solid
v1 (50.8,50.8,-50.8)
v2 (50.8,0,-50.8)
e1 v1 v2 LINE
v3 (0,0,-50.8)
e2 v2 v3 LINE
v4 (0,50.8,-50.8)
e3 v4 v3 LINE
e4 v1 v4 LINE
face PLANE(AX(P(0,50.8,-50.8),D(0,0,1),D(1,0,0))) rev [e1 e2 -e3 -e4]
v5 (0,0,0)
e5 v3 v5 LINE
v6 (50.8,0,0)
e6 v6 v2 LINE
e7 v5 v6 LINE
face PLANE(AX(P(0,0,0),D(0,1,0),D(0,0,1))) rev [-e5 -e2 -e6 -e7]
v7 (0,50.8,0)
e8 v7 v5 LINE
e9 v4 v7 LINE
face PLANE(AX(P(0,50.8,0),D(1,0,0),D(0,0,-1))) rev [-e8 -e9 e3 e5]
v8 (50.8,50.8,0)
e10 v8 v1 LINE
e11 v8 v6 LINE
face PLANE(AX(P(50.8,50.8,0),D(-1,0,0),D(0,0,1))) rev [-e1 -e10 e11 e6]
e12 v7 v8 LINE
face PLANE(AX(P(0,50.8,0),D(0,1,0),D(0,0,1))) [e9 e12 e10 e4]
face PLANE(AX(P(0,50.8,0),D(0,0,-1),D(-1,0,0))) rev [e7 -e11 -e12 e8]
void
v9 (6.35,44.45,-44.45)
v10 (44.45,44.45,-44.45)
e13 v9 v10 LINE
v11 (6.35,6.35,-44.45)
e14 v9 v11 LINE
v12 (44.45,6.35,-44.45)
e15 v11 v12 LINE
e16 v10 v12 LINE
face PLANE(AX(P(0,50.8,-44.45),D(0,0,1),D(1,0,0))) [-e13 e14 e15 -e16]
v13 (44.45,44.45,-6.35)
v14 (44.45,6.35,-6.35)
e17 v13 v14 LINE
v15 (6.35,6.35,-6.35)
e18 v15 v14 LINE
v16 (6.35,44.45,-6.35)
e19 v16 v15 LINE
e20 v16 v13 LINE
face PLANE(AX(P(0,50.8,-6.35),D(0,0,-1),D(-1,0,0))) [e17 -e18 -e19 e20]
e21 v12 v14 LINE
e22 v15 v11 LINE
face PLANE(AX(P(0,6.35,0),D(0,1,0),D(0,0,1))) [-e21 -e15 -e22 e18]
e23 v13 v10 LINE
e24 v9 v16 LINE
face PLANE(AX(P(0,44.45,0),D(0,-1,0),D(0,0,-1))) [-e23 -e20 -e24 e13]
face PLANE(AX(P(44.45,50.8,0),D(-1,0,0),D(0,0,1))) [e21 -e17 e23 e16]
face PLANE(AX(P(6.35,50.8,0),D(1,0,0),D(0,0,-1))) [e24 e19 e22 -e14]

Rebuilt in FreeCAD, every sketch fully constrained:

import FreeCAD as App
import Part
import Sketcher
from FreeCAD import Vector
Q = App.Units.Quantity

doc = App.newDocument("Part")
params = doc.addObject("Spreadsheet::Sheet", "Params")
for row, (alias, value) in enumerate([
    ("sketch1_width", "2 in"),
    ("sketch1_width2", "1.5 in"),
    ("pad1_length", "2 in"),
    ("sketch2_width", "1.5 in"),
    ("pad2_length", "0.25 in"),
    ("sketch3_width", "1.5 in"),
    ("pad3_length", "0.25 in"),
], start=1):
    params.set(f"A{row}", alias)
    params.set(f"B{row}", "=" + value)
    params.setAlias(f"B{row}", alias)

body = doc.addObject("PartDesign::Body", "Body")

# Sketch on XZ plane
sketch1 = doc.addObject("Sketcher::SketchObject", "Sketch")
body.addObject(sketch1)
sketch1.AttachmentSupport = (doc.XZ_Plane, [""])
sketch1.MapMode = "FlatFace"
sketch1.addGeometry(Part.LineSegment(Vector(0, -51, 0), Vector(0, 0, 0)), False)
sketch1.addGeometry(Part.LineSegment(Vector(0, 0, 0), Vector(51, 0, 0)), False)
sketch1.addGeometry(Part.LineSegment(Vector(51, 0, 0), Vector(51, -51, 0)), False)
sketch1.addGeometry(Part.LineSegment(Vector(51, -51, 0), Vector(0, -51, 0)), False)
sketch1.addGeometry(Part.LineSegment(Vector(44, -6, 0), Vector(6, -6, 0)), False)
sketch1.addGeometry(Part.LineSegment(Vector(6, -6, 0), Vector(6, -44, 0)), False)
sketch1.addGeometry(Part.LineSegment(Vector(6, -44, 0), Vector(44, -44, 0)), False)
sketch1.addGeometry(Part.LineSegment(Vector(44, -44, 0), Vector(44, -6, 0)), False)
sketch1.addConstraint(Sketcher.Constraint("Coincident", 0, 2, 1, 1))
sketch1.addConstraint(Sketcher.Constraint("Coincident", 1, 2, 2, 1))
sketch1.addConstraint(Sketcher.Constraint("Coincident", 2, 2, 3, 1))
sketch1.addConstraint(Sketcher.Constraint("Coincident", 3, 2, 0, 1))
sketch1.addConstraint(Sketcher.Constraint("Coincident", 4, 2, 5, 1))
sketch1.addConstraint(Sketcher.Constraint("Coincident", 5, 2, 6, 1))
sketch1.addConstraint(Sketcher.Constraint("Coincident", 6, 2, 7, 1))
sketch1.addConstraint(Sketcher.Constraint("Coincident", 7, 2, 4, 1))
sketch1.addConstraint(Sketcher.Constraint("Vertical", 0))
sketch1.addConstraint(Sketcher.Constraint("Horizontal", 1))
sketch1.addConstraint(Sketcher.Constraint("Vertical", 2))
sketch1.addConstraint(Sketcher.Constraint("Horizontal", 3))
sketch1.addConstraint(Sketcher.Constraint("Horizontal", 4))
sketch1.addConstraint(Sketcher.Constraint("Vertical", 5))
sketch1.addConstraint(Sketcher.Constraint("Horizontal", 6))
sketch1.addConstraint(Sketcher.Constraint("Vertical", 7))
sketch1.addConstraint(Sketcher.Constraint("Coincident", 0, 2, -1, 1))
sketch1.addConstraint(Sketcher.Constraint("Equal", 3, 0))
sketch1.addConstraint(Sketcher.Constraint("Equal", 6, 5))
sketch1.addConstraint(Sketcher.Constraint("DistanceX", 1, 1, 1, 2, Q("2 in")))
sketch1.addConstraint(Sketcher.Constraint("DistanceX", 4, 2, 4, 1, Q("1.5 in")))
sketch1.addConstraint(Sketcher.Constraint("DistanceX", -1, 1, 4, 2, Q("0.25 in")))
sketch1.addConstraint(Sketcher.Constraint("DistanceY", 4, 2, -1, 1, Q("0.25 in")))
sketch1.setExpression("Constraints[19]", "Params.sketch1_width")
sketch1.setExpression("Constraints[20]", "Params.sketch1_width2")
pad1 = doc.addObject("PartDesign::Pad", "Pad")
body.addObject(pad1)
pad1.Profile = sketch1
pad1.setExpression("Length", "Params.pad1_length")
pad1.Reversed = True

# Sketch on XZ plane
sketch2 = doc.addObject("Sketcher::SketchObject", "Sketch001")
body.addObject(sketch2)
sketch2.AttachmentSupport = (doc.XZ_Plane, [""])
sketch2.MapMode = "FlatFace"
sketch2.AttachmentOffset = App.Placement(Vector(0, 0, -2 * 25.4), App.Rotation())
sketch2.addGeometry(Part.LineSegment(Vector(6, -44, 0), Vector(6, -6, 0)), False)
sketch2.addGeometry(Part.LineSegment(Vector(6, -6, 0), Vector(44, -6, 0)), False)
sketch2.addGeometry(Part.LineSegment(Vector(44, -6, 0), Vector(44, -44, 0)), False)
sketch2.addGeometry(Part.LineSegment(Vector(44, -44, 0), Vector(6, -44, 0)), False)
sketch2.addConstraint(Sketcher.Constraint("Coincident", 0, 2, 1, 1))
sketch2.addConstraint(Sketcher.Constraint("Coincident", 1, 2, 2, 1))
sketch2.addConstraint(Sketcher.Constraint("Coincident", 2, 2, 3, 1))
sketch2.addConstraint(Sketcher.Constraint("Coincident", 3, 2, 0, 1))
sketch2.addConstraint(Sketcher.Constraint("Vertical", 0))
sketch2.addConstraint(Sketcher.Constraint("Horizontal", 1))
sketch2.addConstraint(Sketcher.Constraint("Vertical", 2))
sketch2.addConstraint(Sketcher.Constraint("Horizontal", 3))
sketch2.addConstraint(Sketcher.Constraint("DistanceX", 1, 1, 1, 2, Q("1.5 in")))
sketch2.addConstraint(Sketcher.Constraint("DistanceX", -1, 1, 0, 2, Q("0.25 in")))
sketch2.addConstraint(Sketcher.Constraint("DistanceY", 0, 2, -1, 1, Q("0.25 in")))
sketch2.addConstraint(Sketcher.Constraint("DistanceY", 0, 1, 0, 2, 38.10816))
sketch2.setExpression("Constraints[8]", "Params.sketch2_width")
pad2 = doc.addObject("PartDesign::Pad", "Pad001")
body.addObject(pad2)
pad2.Profile = sketch2
pad2.setExpression("Length", "Params.pad2_length")

# Sketch on XZ plane
sketch3 = doc.addObject("Sketcher::SketchObject", "Sketch002")
body.addObject(sketch3)
sketch3.AttachmentSupport = (doc.XZ_Plane, [""])
sketch3.MapMode = "FlatFace"
sketch3.addGeometry(Part.LineSegment(Vector(6, -6, 0), Vector(6, -44, 0)), False)
sketch3.addGeometry(Part.LineSegment(Vector(6, -44, 0), Vector(44, -44, 0)), False)
sketch3.addGeometry(Part.LineSegment(Vector(44, -44, 0), Vector(44, -6, 0)), False)
sketch3.addGeometry(Part.LineSegment(Vector(44, -6, 0), Vector(6, -6, 0)), False)
sketch3.addConstraint(Sketcher.Constraint("Coincident", 0, 2, 1, 1))
sketch3.addConstraint(Sketcher.Constraint("Coincident", 1, 2, 2, 1))
sketch3.addConstraint(Sketcher.Constraint("Coincident", 2, 2, 3, 1))
sketch3.addConstraint(Sketcher.Constraint("Coincident", 3, 2, 0, 1))
sketch3.addConstraint(Sketcher.Constraint("Vertical", 0))
sketch3.addConstraint(Sketcher.Constraint("Horizontal", 1))
sketch3.addConstraint(Sketcher.Constraint("Vertical", 2))
sketch3.addConstraint(Sketcher.Constraint("Horizontal", 3))
sketch3.addConstraint(Sketcher.Constraint("DistanceX", 1, 1, 1, 2, Q("1.5 in")))
sketch3.addConstraint(Sketcher.Constraint("DistanceX", -1, 1, 0, 2, Q("0.25 in")))
sketch3.addConstraint(Sketcher.Constraint("DistanceY", 0, 2, -1, 1, Q("1.75 in")))
sketch3.addConstraint(Sketcher.Constraint("DistanceY", 0, 2, 0, 1, 38.10816))
sketch3.setExpression("Constraints[8]", "Params.sketch3_width")
pad3 = doc.addObject("PartDesign::Pad", "Pad002")
body.addObject(pad3)
pad3.Profile = sketch3
pad3.setExpression("Length", "Params.pad3_length")
pad3.Reversed = True

doc.recompute()
